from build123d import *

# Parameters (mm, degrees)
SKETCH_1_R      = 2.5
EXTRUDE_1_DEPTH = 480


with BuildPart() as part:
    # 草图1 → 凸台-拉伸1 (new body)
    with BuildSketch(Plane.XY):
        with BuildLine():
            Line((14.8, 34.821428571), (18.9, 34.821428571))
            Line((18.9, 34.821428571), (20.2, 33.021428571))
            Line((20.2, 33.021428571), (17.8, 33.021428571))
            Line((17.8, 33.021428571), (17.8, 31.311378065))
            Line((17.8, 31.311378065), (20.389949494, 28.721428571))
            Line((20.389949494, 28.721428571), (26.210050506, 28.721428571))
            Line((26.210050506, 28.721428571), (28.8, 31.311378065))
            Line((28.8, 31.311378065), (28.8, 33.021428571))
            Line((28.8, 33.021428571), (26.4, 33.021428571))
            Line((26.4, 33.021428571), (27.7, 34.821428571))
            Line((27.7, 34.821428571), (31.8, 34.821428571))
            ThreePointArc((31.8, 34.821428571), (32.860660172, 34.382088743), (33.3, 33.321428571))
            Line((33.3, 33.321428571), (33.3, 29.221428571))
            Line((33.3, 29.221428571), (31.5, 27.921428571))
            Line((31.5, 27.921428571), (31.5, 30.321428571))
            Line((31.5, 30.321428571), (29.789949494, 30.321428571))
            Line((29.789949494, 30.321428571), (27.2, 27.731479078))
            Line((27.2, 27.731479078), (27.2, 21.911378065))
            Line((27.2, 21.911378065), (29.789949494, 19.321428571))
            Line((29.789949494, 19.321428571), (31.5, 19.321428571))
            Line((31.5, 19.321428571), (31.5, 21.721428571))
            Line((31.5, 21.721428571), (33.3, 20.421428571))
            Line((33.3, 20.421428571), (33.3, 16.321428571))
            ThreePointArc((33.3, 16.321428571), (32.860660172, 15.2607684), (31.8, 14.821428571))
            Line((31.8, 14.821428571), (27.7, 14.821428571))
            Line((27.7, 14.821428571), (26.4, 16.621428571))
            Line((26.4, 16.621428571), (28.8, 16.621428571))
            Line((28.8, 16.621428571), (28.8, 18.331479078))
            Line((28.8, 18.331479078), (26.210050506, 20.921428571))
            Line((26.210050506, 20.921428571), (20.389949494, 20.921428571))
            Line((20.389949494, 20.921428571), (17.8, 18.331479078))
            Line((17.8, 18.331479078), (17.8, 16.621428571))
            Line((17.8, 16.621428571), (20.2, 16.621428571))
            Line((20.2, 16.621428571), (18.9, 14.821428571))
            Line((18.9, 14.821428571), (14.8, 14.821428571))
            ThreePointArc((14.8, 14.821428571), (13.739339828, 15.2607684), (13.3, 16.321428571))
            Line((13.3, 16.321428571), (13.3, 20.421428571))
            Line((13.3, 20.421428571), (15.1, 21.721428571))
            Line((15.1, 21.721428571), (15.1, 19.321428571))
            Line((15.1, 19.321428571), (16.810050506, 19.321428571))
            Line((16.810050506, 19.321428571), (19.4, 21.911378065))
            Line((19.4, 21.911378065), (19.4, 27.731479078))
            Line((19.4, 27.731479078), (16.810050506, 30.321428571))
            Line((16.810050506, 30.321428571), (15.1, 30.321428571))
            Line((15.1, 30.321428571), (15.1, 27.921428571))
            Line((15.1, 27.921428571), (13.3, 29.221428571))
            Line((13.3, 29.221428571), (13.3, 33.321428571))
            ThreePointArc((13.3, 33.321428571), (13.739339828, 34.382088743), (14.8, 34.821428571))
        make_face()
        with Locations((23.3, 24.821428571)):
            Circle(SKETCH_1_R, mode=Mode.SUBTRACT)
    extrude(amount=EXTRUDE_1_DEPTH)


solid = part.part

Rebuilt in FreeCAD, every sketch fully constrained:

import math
import FreeCAD as App
import Part
import Sketcher

V = App.Vector

doc = App.newDocument("Part")
params = doc.addObject("Spreadsheet::Sheet", "Params")
for row, (alias, value) in enumerate([
    ("sketch1_diameter", "5 mm"),
    ("sketch1_radius", "1.5 mm"),
    ("sketch1_width", "4.1 mm"),
    ("sketch1_width2", "2.4 mm"),
    ("pad1_length", "480 mm"),
], start=1):
    params.set(f"A{row}", alias)
    params.set(f"B{row}", "=" + value)
    params.setAlias(f"B{row}", alias)

body = doc.addObject("PartDesign::Body", "Body")

# Sketch on XY plane
sketch1 = body.newObject("Sketcher::SketchObject", "Sketch")
sketch1.AttachmentSupport = (doc.getObject("XY_Plane"), [""])
sketch1.MapMode = "FlatFace"
sketch1.addGeometry([
    Part.LineSegment(V(18.9, 34.8, 0), V(14.8, 34.8, 0)),  # 0
    Part.ArcOfCircle(Part.Circle(V(14.8, 33.3, 0), V(0, 0, 1), 1.5), math.radians(90), math.radians(180)),  # 1
    Part.LineSegment(V(13.3, 33.3, 0), V(13.3, 29.2, 0)),  # 2
    Part.LineSegment(V(13.3, 29.2, 0), V(15.1, 27.9, 0)),  # 3
    Part.LineSegment(V(15.1, 27.9, 0), V(15.1, 30.3, 0)),  # 4
    Part.LineSegment(V(15.1, 30.3, 0), V(16.8, 30.3, 0)),  # 5
    Part.LineSegment(V(16.8, 30.3, 0), V(19.4, 27.7, 0)),  # 6
    Part.LineSegment(V(19.4, 27.7, 0), V(19.4, 21.9, 0)),  # 7
    Part.LineSegment(V(19.4, 21.9, 0), V(16.8, 19.3, 0)),  # 8
    Part.LineSegment(V(16.8, 19.3, 0), V(15.1, 19.3, 0)),  # 9
    Part.LineSegment(V(15.1, 19.3, 0), V(15.1, 21.7, 0)),  # 10
    Part.LineSegment(V(15.1, 21.7, 0), V(13.3, 20.4, 0)),  # 11
    Part.LineSegment(V(13.3, 20.4, 0), V(13.3, 16.3, 0)),  # 12
    Part.ArcOfCircle(Part.Circle(V(14.8, 16.3, 0), V(0, 0, 1), 1.5), math.radians(-180), math.radians(-90)),  # 13
    Part.LineSegment(V(14.8, 14.8, 0), V(18.9, 14.8, 0)),  # 14
    Part.LineSegment(V(18.9, 14.8, 0), V(20.2, 16.6, 0)),  # 15
    Part.LineSegment(V(20.2, 16.6, 0), V(17.8, 16.6, 0)),  # 16
    Part.LineSegment(V(17.8, 16.6, 0), V(17.8, 18.3, 0)),  # 17
    Part.LineSegment(V(17.8, 18.3, 0), V(20.4, 20.9, 0)),  # 18
    Part.LineSegment(V(20.4, 20.9, 0), V(26.2, 20.9, 0)),  # 19
    Part.LineSegment(V(26.2, 20.9, 0), V(28.8, 18.3, 0)),  # 20
    Part.LineSegment(V(28.8, 18.3, 0), V(28.8, 16.6, 0)),  # 21
    Part.LineSegment(V(28.8, 16.6, 0), V(26.4, 16.6, 0)),  # 22
    Part.LineSegment(V(26.4, 16.6, 0), V(27.7, 14.8, 0)),  # 23
    Part.LineSegment(V(27.7, 14.8, 0), V(31.8, 14.8, 0)),  # 24
    Part.ArcOfCircle(Part.Circle(V(31.8, 16.3, 0), V(0, 0, 1), 1.5), math.radians(-90), math.radians(0)),  # 25
    Part.LineSegment(V(33.3, 16.3, 0), V(33.3, 20.4, 0)),  # 26
    Part.LineSegment(V(33.3, 20.4, 0), V(31.5, 21.7, 0)),  # 27
    Part.LineSegment(V(31.5, 21.7, 0), V(31.5, 19.3, 0)),  # 28
    Part.LineSegment(V(31.5, 19.3, 0), V(29.8, 19.3, 0)),  # 29
    Part.LineSegment(V(29.8, 19.3, 0), V(27.2, 21.9, 0)),  # 30
    Part.LineSegment(V(27.2, 21.9, 0), V(27.2, 27.7, 0)),  # 31
    Part.LineSegment(V(27.2, 27.7, 0), V(29.8, 30.3, 0)),  # 32
    Part.LineSegment(V(29.8, 30.3, 0), V(31.5, 30.3, 0)),  # 33
    Part.LineSegment(V(31.5, 30.3, 0), V(31.5, 27.9, 0)),  # 34
    Part.LineSegment(V(31.5, 27.9, 0), V(33.3, 29.2, 0)),  # 35
    Part.LineSegment(V(33.3, 29.2, 0), V(33.3, 33.3, 0)),  # 36
    Part.ArcOfCircle(Part.Circle(V(31.8, 33.3, 0), V(0, 0, 1), 1.5), math.radians(0), math.radians(90)),  # 37
    Part.LineSegment(V(31.8, 34.8, 0), V(27.7, 34.8, 0)),  # 38
    Part.LineSegment(V(27.7, 34.8, 0), V(26.4, 33, 0)),  # 39
    Part.LineSegment(V(26.4, 33, 0), V(28.8, 33, 0)),  # 40
    Part.LineSegment(V(28.8, 33, 0), V(28.8, 31.3, 0)),  # 41
    Part.LineSegment(V(28.8, 31.3, 0), V(26.2, 28.7, 0)),  # 42
    Part.LineSegment(V(26.2, 28.7, 0), V(20.4, 28.7, 0)),  # 43
    Part.LineSegment(V(20.4, 28.7, 0), V(17.8, 31.3, 0)),  # 44
    Part.LineSegment(V(17.8, 31.3, 0), V(17.8, 33, 0)),  # 45
    Part.LineSegment(V(17.8, 33, 0), V(20.2, 33, 0)),  # 46
    Part.LineSegment(V(20.2, 33, 0), V(18.9, 34.8, 0)),  # 47
    Part.Circle(V(23.3, 24.8, 0), V(0, 0, 1), 2.5),  # 48
], False)
sketch1.addConstraint([
    Sketcher.Constraint("Tangent", 0, 2, 1, 1),
    Sketcher.Constraint("Tangent", 1, 2, 2, 1),
    Sketcher.Constraint("Coincident", 2, 2, 3, 1),
    Sketcher.Constraint("Coincident", 3, 2, 4, 1),
    Sketcher.Constraint("Coincident", 4, 2, 5, 1),
    Sketcher.Constraint("Coincident", 5, 2, 6, 1),
    Sketcher.Constraint("Coincident", 6, 2, 7, 1),
    Sketcher.Constraint("Coincident", 7, 2, 8, 1),
    Sketcher.Constraint("Coincident", 8, 2, 9, 1),
    Sketcher.Constraint("Coincident", 9, 2, 10, 1),
    Sketcher.Constraint("Coincident", 10, 2, 11, 1),
    Sketcher.Constraint("Coincident", 11, 2, 12, 1),
    Sketcher.Constraint("Tangent", 12, 2, 13, 1),
    Sketcher.Constraint("Tangent", 13, 2, 14, 1),
    Sketcher.Constraint("Coincident", 14, 2, 15, 1),
    Sketcher.Constraint("Coincident", 15, 2, 16, 1),
    Sketcher.Constraint("Coincident", 16, 2, 17, 1),
    Sketcher.Constraint("Coincident", 17, 2, 18, 1),
    Sketcher.Constraint("Coincident", 18, 2, 19, 1),
    Sketcher.Constraint("Coincident", 19, 2, 20, 1),
    Sketcher.Constraint("Coincident", 20, 2, 21, 1),
    Sketcher.Constraint("Coincident", 21, 2, 22, 1),
    Sketcher.Constraint("Coincident", 22, 2, 23, 1),
    Sketcher.Constraint("Coincident", 23, 2, 24, 1),
    Sketcher.Constraint("Tangent", 24, 2, 25, 1),
    Sketcher.Constraint("Tangent", 25, 2, 26, 1),
    Sketcher.Constraint("Coincident", 26, 2, 27, 1),
    Sketcher.Constraint("Coincident", 27, 2, 28, 1),
    Sketcher.Constraint("Coincident", 28, 2, 29, 1),
    Sketcher.Constraint("Coincident", 29, 2, 30, 1),
    Sketcher.Constraint("Coincident", 30, 2, 31, 1),
    Sketcher.Constraint("Coincident", 31, 2, 32, 1),
    Sketcher.Constraint("Coincident", 32, 2, 33, 1),
    Sketcher.Constraint("Coincident", 33, 2, 34, 1),
    Sketcher.Constraint("Coincident", 34, 2, 35, 1),
    Sketcher.Constraint("Coincident", 35, 2, 36, 1),
    Sketcher.Constraint("Tangent", 36, 2, 37, 1),
    Sketcher.Constraint("Tangent", 37, 2, 38, 1),
    Sketcher.Constraint("Coincident", 38, 2, 39, 1),
    Sketcher.Constraint("Coincident", 39, 2, 40, 1),
    Sketcher.Constraint("Coincident", 40, 2, 41, 1),
    Sketcher.Constraint("Coincident", 41, 2, 42, 1),
    Sketcher.Constraint("Coincident", 42, 2, 43, 1),
    Sketcher.Constraint("Coincident", 43, 2, 44, 1),
    Sketcher.Constraint("Coincident", 44, 2, 45, 1),
    Sketcher.Constraint("Coincident", 45, 2, 46, 1),
    Sketcher.Constraint("Coincident", 46, 2, 47, 1),
    Sketcher.Constraint("Coincident", 47, 2, 0, 1),
    Sketcher.Constraint("Horizontal", 0),
    Sketcher.Constraint("Vertical", 2),
    Sketcher.Constraint("Vertical", 4),
    Sketcher.Constraint("Horizontal", 5),
    Sketcher.Constraint("Vertical", 7),
    Sketcher.Constraint("Horizontal", 9),
    Sketcher.Constraint("Vertical", 10),
    Sketcher.Constraint("Vertical", 12),
    Sketcher.Constraint("Horizontal", 14),
    Sketcher.Constraint("Horizontal", 16),
    Sketcher.Constraint("Vertical", 17),
    Sketcher.Constraint("Horizontal", 19),
    Sketcher.Constraint("Vertical", 21),
    Sketcher.Constraint("Horizontal", 22),
    Sketcher.Constraint("Horizontal", 24),
    Sketcher.Constraint("Vertical", 26),
    Sketcher.Constraint("Vertical", 28),
    Sketcher.Constraint("Horizontal", 29),
    Sketcher.Constraint("Vertical", 31),
    Sketcher.Constraint("Horizontal", 33),
    Sketcher.Constraint("Vertical", 34),
    Sketcher.Constraint("Vertical", 36),
    Sketcher.Constraint("Horizontal", 38),
    Sketcher.Constraint("Horizontal", 40),
    Sketcher.Constraint("Vertical", 41),
    Sketcher.Constraint("Horizontal", 43),
    Sketcher.Constraint("Vertical", 45),
    Sketcher.Constraint("Horizontal", 46),
    Sketcher.Constraint("Equal", 1, 13),
    Sketcher.Constraint("Equal", 13, 25),
    Sketcher.Constraint("Equal", 25, 37),
    Sketcher.Constraint("Perpendicular", 6, 8),
    Sketcher.Constraint("Perpendicular", 3, 15),
    Sketcher.Constraint("Parallel", 8, 18),
    Sketcher.Constraint("Perpendicular", 18, 20),
    Sketcher.Constraint("Perpendicular", 11, 23),
    Sketcher.Constraint("Perpendicular", 15, 27),
    Sketcher.Constraint("Parallel", 20, 30),
    Sketcher.Constraint("Perpendicular", 30, 32),
    Sketcher.Constraint("Perpendicular", 23, 35),
    Sketcher.Constraint("Perpendicular", 27, 39),
    Sketcher.Constraint("Parallel", 32, 42),
    Sketcher.Constraint("Perpendicular", 42, 44),
    Sketcher.Constraint("Perpendicular", 35, 47),
    Sketcher.Constraint("Horizontal", 13, 3, 25, 3),
    Sketcher.Constraint("Horizontal", 1, 3, 37, 3),
    Sketcher.Constraint("Horizontal", 17, 2, 20, 2),
    Sketcher.Constraint("Horizontal", 16, 2, 21, 2),
    Sketcher.Constraint("Horizontal", 11, 2, 26, 2),
    Sketcher.Constraint("Horizontal", 10, 2, 27, 2),
    Sketcher.Constraint("Horizontal", 9, 2, 28, 2),
    Sketcher.Constraint("Horizontal", 7, 2, 30, 2),
    Sketcher.Constraint("Horizontal", 6, 2, 31, 2),
    Sketcher.Constraint("Horizontal", 5, 2, 32, 2),
    Sketcher.Constraint("Horizontal", 3, 2, 34, 2),
    Sketcher.Constraint("Horizontal", 2, 2, 35, 2),
    Sketcher.Constraint("Horizontal", 41, 2, 44, 2),
    Sketcher.Constraint("Horizontal", 40, 2, 45, 2),
    Sketcher.Constraint("Vertical", 1, 3, 13, 3),
    Sketcher.Constraint("Vertical", 25, 3, 37, 3),
    Sketcher.Constraint("Vertical", 5, 2, 8, 2),
    Sketcher.Constraint("Vertical", 4, 2, 9, 2),
    Sketcher.Constraint("Vertical", 29, 2, 32, 2),
    Sketcher.Constraint("Vertical", 28, 2, 33, 2),
    Sketcher.Constraint("Vertical", 23, 2, 38, 2),
    Sketcher.Constraint("Vertical", 22, 2, 39, 2),
    Sketcher.Constraint("Vertical", 21, 2, 40, 2),
    Sketcher.Constraint("Vertical", 19, 2, 42, 2),
    Sketcher.Constraint("Vertical", 18, 2, 43, 2),
    Sketcher.Constraint("Vertical", 15, 2, 46, 2),
    Sketcher.Constraint("Equal", 16, 22),
    Sketcher.Constraint("Equal", 14, 24),
    Sketcher.Constraint("Equal", 9, 29),
    Sketcher.Constraint("Equal", 38, 2),
    Sketcher.Constraint("Equal", 46, 4),
    Sketcher.Constraint("Equal", 43, 7),
    Sketcher.Constraint("Equal", 4, 10),
    Sketcher.Constraint("Equal", 2, 12),
    Sketcher.Constraint("Equal", 33, 17),
    Sketcher.Constraint("Equal", 21, 41),
    Sketcher.Constraint("Equal", 11, 15),
    Sketcher.Constraint("Equal", 8, 18),
    Sketcher.Constraint("Diameter", 48, 5.0),
    Sketcher.Constraint("Radius", 1, 1.5),
    Sketcher.Constraint("DistanceX", 0, 2, 0, 1, 4.1),
    Sketcher.Constraint("DistanceX", 16, 2, 16, 1, 2.4),
    Sketcher.Constraint("DistanceY", 13, 3, 1, 3, 17.0),
    Sketcher.Constraint("DistanceY", 48, 3, 0, 2, 10.0),
    Sketcher.Constraint("DistanceX", 1, 2, 48, 3, 10.0),
    Sketcher.Constraint("DistanceY", 4, 2, 1, 3, 3.0),
    Sketcher.Constraint("DistanceX", -1, 1, 1, 3, 14.8),
    Sketcher.Constraint("DistanceX", -1, 1, 3, 2, 15.1),
    Sketcher.Constraint("DistanceX", -1, 1, 6, 2, 19.4),
    Sketcher.Constraint("DistanceX", 19, 1, 19, 2, 5.820101),
    Sketcher.Constraint("DistanceY", -1, 1, 1, 3, 33.321429),
])
sketch1.setExpression("Constraints[130]", "Params.sketch1_diameter")
sketch1.setExpression("Constraints[131]", "Params.sketch1_radius")
sketch1.setExpression("Constraints[132]", "Params.sketch1_width")
sketch1.setExpression("Constraints[133]", "Params.sketch1_width2")
pad1 = body.newObject("PartDesign::Pad", "Pad")
pad1.Profile = sketch1
pad1.setExpression("Length", "Params.pad1_length")

doc.recompute()
